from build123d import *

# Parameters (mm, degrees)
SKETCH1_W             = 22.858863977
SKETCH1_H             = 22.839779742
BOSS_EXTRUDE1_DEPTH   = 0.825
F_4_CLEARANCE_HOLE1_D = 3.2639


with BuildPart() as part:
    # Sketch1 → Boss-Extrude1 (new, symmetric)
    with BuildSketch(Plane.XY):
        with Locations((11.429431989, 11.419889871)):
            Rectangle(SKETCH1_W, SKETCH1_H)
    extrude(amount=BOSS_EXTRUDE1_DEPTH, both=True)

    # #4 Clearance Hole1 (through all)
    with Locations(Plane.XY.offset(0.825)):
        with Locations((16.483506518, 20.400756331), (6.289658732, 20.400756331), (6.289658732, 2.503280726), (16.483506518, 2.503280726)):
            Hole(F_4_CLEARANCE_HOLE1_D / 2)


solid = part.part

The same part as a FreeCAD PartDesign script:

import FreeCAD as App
import Part
import Sketcher
from FreeCAD import Vector


def add_polygon(sketch, points):
    """Adds a closed chain of lines whose ends are joined by coincident constraints."""
    first, n = sketch.GeometryCount, len(points)
    for a, b in zip(points, points[1:] + points[:1]):
        sketch.addGeometry(Part.LineSegment(App.Vector(*a, 0), App.Vector(*b, 0)), False)
    for i in range(n):
        sketch.addConstraint(Sketcher.Constraint("Coincident", first + i, 2, first + (i + 1) % n, 1))

doc = App.newDocument("Part")
body = doc.addObject("PartDesign::Body", "Body")

sketch1 = body.newObject("Sketcher::SketchObject", "Sketch")
sketch1.AttachmentSupport = (doc.getObject("XY_Plane"), [""])
sketch1.MapMode = "FlatFace"
add_polygon(sketch1, [(0, 23), (0, 0), (23, 0), (23, 23)])
sketch1.addConstraint([
    Sketcher.Constraint("Vertical", 0),
    Sketcher.Constraint("Horizontal", 1),
    Sketcher.Constraint("Vertical", 2),
    Sketcher.Constraint("Horizontal", 3),
    Sketcher.Constraint("Coincident", 0, 2, -1, 1),
    Sketcher.Constraint("DistanceY", 0, 2, 0, 1, 22.83978),
    Sketcher.Constraint("DistanceX", 1, 1, 1, 2, 22.858864),
])
pad1 = body.newObject("PartDesign::Pad", "Pad")
pad1.Profile = sketch1
pad1.Length = 1.65
pad1.Midplane = True

sketch2 = body.newObject("Sketcher::SketchObject", "Sketch001")
sketch2.AttachmentSupport = (doc.getObject("XY_Plane"), [""])
sketch2.MapMode = "FlatFace"
sketch2.AttachmentOffset = App.Placement(Vector(0, 0, 0.825), App.Rotation())
sketch2.addGeometry([
    Part.Circle(Vector(16.5, 20.4, 0), Vector(0, 0, 1), 1.6),
    Part.Circle(Vector(6.3, 20.4, 0), Vector(0, 0, 1), 1.6),
    Part.Circle(Vector(6.3, 2.5, 0), Vector(0, 0, 1), 1.6),
    Part.Circle(Vector(16.5, 2.5, 0), Vector(0, 0, 1), 1.6),
], False)
sketch2.addConstraint([
    Sketcher.Constraint("Equal", 0, 1),
    Sketcher.Constraint("Equal", 1, 2),
    Sketcher.Constraint("Equal", 2, 3),
    Sketcher.Constraint("Horizontal", 0, 3, 1, 3),
    Sketcher.Constraint("Horizontal", 2, 3, 3, 3),
    Sketcher.Constraint("Vertical", 1, 3, 2, 3),
    Sketcher.Constraint("Vertical", 0, 3, 3, 3),
    Sketcher.Constraint("Diameter", 0, 3.2639),
    Sketcher.Constraint("DistanceX", -1, 1, 1, 3, 6.289659),
    Sketcher.Constraint("DistanceY", -1, 1, 2, 3, 2.503281),
    Sketcher.Constraint("DistanceX", -1, 1, 0, 3, 16.483507),
    Sketcher.Constraint("DistanceY", -1, 1, 0, 3, 20.400756),
])
doc.recompute()
hole = body.newObject("PartDesign::Hole", "Hole")
hole.Profile = sketch2
hole.ThreadType = "None"
hole.Diameter = 3.2639
hole.DepthType = "ThroughAll"

doc.recompute()
